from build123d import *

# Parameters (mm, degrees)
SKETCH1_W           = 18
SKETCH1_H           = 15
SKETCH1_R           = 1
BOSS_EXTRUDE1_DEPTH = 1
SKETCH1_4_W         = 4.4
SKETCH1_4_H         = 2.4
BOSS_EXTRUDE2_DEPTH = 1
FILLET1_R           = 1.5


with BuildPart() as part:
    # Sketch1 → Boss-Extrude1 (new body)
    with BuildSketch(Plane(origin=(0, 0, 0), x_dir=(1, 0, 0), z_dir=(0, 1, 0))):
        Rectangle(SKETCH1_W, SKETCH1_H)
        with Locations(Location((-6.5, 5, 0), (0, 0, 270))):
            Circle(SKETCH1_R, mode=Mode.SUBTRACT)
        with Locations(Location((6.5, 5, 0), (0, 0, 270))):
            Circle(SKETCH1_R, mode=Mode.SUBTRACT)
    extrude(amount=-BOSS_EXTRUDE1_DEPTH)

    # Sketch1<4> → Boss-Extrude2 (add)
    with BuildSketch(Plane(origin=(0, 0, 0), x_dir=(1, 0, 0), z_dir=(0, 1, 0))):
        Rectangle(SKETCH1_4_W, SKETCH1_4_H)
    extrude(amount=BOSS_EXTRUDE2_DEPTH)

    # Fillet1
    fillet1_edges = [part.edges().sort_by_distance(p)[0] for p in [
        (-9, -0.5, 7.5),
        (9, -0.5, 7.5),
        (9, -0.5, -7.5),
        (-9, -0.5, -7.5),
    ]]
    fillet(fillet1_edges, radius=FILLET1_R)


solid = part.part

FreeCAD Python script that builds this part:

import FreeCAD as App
import Part
import Sketcher
Q = App.Units.Quantity


def edges_at(feature, points):
    """Names of the edges that pass closest to the given points."""
    edges = feature.Shape.Edges
    near = lambda p: min(range(len(edges)), key=lambda i: edges[i].distToShape(Part.Vertex(*p))[0])
    return sorted({f"Edge{near(p) + 1}" for p in points})


def add_polygon(sketch, points):
    """Adds a closed chain of lines whose ends are joined by coincident constraints."""
    first, n = sketch.GeometryCount, len(points)
    for a, b in zip(points, points[1:] + points[:1]):
        sketch.addGeometry(Part.LineSegment(App.Vector(*a, 0), App.Vector(*b, 0)), False)
    for i in range(n):
        sketch.addConstraint(Sketcher.Constraint("Coincident", first + i, 2, first + (i + 1) % n, 1))

doc = App.newDocument("Part")
params = doc.addObject("Spreadsheet::Sheet", "Params")
for row, (alias, value) in enumerate([
    ("sketch1_diameter", "2 mm"),
    ("sketch1_width", "18 mm"),
    ("sketch1_height", "15 mm"),
    ("pad1_length", "1 mm"),
    ("sketch2_width", "4.4 mm"),
    ("sketch2_height", "2.4 mm"),
    ("pad2_length", "1 mm"),
    ("fillet_radius", "1.5 mm"),
], start=1):
    params.set(f"A{row}", alias)
    params.set(f"B{row}", "=" + value)
    params.setAlias(f"B{row}", alias)

body = doc.addObject("PartDesign::Body", "Body")

# Sketch on XZ plane
sketch1 = body.newObject("Sketcher::SketchObject", "Sketch")
sketch1.AttachmentSupport = (doc.getObject("XZ_Plane"), [""])
sketch1.MapMode = "FlatFace"
add_polygon(sketch1, [(-9, -7.5), (-9, 7.5), (9, 7.5), (9, -7.5)])  # lines 0-3
sketch1.addGeometry(Part.Circle(App.Vector(-6.5, -5, 0), App.Vector(0, 0, 1), 1), False)  # 4
sketch1.addGeometry(Part.Circle(App.Vector(6.5, -5, 0), App.Vector(0, 0, 1), 1), False)  # 5
sketch1.addConstraint([
    Sketcher.Constraint("Vertical", 0),
    Sketcher.Constraint("Horizontal", 1),
    Sketcher.Constraint("Vertical", 2),
    Sketcher.Constraint("Horizontal", 3),
    Sketcher.Constraint("Equal", 4, 5),
    Sketcher.Constraint("Symmetric", 0, 2, 2, 2, -1, 1),
    Sketcher.Constraint("Symmetric", 4, 3, 5, 3, -2),
    Sketcher.Constraint("Diameter", 4, Q("2 mm")),
    Sketcher.Constraint("DistanceX", 1, 1, 1, 2, Q("18 mm")),
    Sketcher.Constraint("DistanceY", 0, 1, 0, 2, Q("15 mm")),
    Sketcher.Constraint("DistanceY", 4, 3, -1, 1, Q("5 mm")),
    Sketcher.Constraint("DistanceX", 4, 3, 5, 3, Q("13 mm")),
])
sketch1.setExpression("Constraints[11]", "Params.sketch1_diameter")
sketch1.setExpression("Constraints[12]", "Params.sketch1_width")
sketch1.setExpression("Constraints[13]", "Params.sketch1_height")
pad1 = body.newObject("PartDesign::Pad", "Pad")
pad1.Profile = sketch1
pad1.setExpression("Length", "Params.pad1_length")

# Sketch on XZ plane
sketch2 = body.newObject("Sketcher::SketchObject", "Sketch001")
sketch2.AttachmentSupport = (doc.getObject("XZ_Plane"), [""])
sketch2.MapMode = "FlatFace"
add_polygon(sketch2, [(-2.2, -1.2), (-2.2, 1.2), (2.2, 1.2), (2.2, -1.2)])  # lines 0-3
sketch2.addConstraint([
    Sketcher.Constraint("Vertical", 0),
    Sketcher.Constraint("Horizontal", 1),
    Sketcher.Constraint("Vertical", 2),
    Sketcher.Constraint("Horizontal", 3),
    Sketcher.Constraint("Symmetric", 0, 2, 2, 2, -1, 1),
    Sketcher.Constraint("DistanceX", 1, 1, 1, 2, Q("4.4 mm")),
    Sketcher.Constraint("DistanceY", 0, 1, 0, 2, Q("2.4 mm")),
])
sketch2.setExpression("Constraints[9]", "Params.sketch2_width")
sketch2.setExpression("Constraints[10]", "Params.sketch2_height")
pad2 = body.newObject("PartDesign::Pad", "Pad001")
pad2.Profile = sketch2
pad2.setExpression("Length", "Params.pad2_length")
pad2.Reversed = True
doc.recompute()

fillet = body.newObject("PartDesign::Fillet", "Fillet")
fillet.Base = (pad2, edges_at(pad2, [
    (-9, -0.5, 7.5),
    (9, -0.5, 7.5),
    (9, -0.5, -7.5),
    (-9, -0.5, -7.5),
]))
fillet.setExpression("Radius", "Params.fillet_radius")

doc.recompute()
